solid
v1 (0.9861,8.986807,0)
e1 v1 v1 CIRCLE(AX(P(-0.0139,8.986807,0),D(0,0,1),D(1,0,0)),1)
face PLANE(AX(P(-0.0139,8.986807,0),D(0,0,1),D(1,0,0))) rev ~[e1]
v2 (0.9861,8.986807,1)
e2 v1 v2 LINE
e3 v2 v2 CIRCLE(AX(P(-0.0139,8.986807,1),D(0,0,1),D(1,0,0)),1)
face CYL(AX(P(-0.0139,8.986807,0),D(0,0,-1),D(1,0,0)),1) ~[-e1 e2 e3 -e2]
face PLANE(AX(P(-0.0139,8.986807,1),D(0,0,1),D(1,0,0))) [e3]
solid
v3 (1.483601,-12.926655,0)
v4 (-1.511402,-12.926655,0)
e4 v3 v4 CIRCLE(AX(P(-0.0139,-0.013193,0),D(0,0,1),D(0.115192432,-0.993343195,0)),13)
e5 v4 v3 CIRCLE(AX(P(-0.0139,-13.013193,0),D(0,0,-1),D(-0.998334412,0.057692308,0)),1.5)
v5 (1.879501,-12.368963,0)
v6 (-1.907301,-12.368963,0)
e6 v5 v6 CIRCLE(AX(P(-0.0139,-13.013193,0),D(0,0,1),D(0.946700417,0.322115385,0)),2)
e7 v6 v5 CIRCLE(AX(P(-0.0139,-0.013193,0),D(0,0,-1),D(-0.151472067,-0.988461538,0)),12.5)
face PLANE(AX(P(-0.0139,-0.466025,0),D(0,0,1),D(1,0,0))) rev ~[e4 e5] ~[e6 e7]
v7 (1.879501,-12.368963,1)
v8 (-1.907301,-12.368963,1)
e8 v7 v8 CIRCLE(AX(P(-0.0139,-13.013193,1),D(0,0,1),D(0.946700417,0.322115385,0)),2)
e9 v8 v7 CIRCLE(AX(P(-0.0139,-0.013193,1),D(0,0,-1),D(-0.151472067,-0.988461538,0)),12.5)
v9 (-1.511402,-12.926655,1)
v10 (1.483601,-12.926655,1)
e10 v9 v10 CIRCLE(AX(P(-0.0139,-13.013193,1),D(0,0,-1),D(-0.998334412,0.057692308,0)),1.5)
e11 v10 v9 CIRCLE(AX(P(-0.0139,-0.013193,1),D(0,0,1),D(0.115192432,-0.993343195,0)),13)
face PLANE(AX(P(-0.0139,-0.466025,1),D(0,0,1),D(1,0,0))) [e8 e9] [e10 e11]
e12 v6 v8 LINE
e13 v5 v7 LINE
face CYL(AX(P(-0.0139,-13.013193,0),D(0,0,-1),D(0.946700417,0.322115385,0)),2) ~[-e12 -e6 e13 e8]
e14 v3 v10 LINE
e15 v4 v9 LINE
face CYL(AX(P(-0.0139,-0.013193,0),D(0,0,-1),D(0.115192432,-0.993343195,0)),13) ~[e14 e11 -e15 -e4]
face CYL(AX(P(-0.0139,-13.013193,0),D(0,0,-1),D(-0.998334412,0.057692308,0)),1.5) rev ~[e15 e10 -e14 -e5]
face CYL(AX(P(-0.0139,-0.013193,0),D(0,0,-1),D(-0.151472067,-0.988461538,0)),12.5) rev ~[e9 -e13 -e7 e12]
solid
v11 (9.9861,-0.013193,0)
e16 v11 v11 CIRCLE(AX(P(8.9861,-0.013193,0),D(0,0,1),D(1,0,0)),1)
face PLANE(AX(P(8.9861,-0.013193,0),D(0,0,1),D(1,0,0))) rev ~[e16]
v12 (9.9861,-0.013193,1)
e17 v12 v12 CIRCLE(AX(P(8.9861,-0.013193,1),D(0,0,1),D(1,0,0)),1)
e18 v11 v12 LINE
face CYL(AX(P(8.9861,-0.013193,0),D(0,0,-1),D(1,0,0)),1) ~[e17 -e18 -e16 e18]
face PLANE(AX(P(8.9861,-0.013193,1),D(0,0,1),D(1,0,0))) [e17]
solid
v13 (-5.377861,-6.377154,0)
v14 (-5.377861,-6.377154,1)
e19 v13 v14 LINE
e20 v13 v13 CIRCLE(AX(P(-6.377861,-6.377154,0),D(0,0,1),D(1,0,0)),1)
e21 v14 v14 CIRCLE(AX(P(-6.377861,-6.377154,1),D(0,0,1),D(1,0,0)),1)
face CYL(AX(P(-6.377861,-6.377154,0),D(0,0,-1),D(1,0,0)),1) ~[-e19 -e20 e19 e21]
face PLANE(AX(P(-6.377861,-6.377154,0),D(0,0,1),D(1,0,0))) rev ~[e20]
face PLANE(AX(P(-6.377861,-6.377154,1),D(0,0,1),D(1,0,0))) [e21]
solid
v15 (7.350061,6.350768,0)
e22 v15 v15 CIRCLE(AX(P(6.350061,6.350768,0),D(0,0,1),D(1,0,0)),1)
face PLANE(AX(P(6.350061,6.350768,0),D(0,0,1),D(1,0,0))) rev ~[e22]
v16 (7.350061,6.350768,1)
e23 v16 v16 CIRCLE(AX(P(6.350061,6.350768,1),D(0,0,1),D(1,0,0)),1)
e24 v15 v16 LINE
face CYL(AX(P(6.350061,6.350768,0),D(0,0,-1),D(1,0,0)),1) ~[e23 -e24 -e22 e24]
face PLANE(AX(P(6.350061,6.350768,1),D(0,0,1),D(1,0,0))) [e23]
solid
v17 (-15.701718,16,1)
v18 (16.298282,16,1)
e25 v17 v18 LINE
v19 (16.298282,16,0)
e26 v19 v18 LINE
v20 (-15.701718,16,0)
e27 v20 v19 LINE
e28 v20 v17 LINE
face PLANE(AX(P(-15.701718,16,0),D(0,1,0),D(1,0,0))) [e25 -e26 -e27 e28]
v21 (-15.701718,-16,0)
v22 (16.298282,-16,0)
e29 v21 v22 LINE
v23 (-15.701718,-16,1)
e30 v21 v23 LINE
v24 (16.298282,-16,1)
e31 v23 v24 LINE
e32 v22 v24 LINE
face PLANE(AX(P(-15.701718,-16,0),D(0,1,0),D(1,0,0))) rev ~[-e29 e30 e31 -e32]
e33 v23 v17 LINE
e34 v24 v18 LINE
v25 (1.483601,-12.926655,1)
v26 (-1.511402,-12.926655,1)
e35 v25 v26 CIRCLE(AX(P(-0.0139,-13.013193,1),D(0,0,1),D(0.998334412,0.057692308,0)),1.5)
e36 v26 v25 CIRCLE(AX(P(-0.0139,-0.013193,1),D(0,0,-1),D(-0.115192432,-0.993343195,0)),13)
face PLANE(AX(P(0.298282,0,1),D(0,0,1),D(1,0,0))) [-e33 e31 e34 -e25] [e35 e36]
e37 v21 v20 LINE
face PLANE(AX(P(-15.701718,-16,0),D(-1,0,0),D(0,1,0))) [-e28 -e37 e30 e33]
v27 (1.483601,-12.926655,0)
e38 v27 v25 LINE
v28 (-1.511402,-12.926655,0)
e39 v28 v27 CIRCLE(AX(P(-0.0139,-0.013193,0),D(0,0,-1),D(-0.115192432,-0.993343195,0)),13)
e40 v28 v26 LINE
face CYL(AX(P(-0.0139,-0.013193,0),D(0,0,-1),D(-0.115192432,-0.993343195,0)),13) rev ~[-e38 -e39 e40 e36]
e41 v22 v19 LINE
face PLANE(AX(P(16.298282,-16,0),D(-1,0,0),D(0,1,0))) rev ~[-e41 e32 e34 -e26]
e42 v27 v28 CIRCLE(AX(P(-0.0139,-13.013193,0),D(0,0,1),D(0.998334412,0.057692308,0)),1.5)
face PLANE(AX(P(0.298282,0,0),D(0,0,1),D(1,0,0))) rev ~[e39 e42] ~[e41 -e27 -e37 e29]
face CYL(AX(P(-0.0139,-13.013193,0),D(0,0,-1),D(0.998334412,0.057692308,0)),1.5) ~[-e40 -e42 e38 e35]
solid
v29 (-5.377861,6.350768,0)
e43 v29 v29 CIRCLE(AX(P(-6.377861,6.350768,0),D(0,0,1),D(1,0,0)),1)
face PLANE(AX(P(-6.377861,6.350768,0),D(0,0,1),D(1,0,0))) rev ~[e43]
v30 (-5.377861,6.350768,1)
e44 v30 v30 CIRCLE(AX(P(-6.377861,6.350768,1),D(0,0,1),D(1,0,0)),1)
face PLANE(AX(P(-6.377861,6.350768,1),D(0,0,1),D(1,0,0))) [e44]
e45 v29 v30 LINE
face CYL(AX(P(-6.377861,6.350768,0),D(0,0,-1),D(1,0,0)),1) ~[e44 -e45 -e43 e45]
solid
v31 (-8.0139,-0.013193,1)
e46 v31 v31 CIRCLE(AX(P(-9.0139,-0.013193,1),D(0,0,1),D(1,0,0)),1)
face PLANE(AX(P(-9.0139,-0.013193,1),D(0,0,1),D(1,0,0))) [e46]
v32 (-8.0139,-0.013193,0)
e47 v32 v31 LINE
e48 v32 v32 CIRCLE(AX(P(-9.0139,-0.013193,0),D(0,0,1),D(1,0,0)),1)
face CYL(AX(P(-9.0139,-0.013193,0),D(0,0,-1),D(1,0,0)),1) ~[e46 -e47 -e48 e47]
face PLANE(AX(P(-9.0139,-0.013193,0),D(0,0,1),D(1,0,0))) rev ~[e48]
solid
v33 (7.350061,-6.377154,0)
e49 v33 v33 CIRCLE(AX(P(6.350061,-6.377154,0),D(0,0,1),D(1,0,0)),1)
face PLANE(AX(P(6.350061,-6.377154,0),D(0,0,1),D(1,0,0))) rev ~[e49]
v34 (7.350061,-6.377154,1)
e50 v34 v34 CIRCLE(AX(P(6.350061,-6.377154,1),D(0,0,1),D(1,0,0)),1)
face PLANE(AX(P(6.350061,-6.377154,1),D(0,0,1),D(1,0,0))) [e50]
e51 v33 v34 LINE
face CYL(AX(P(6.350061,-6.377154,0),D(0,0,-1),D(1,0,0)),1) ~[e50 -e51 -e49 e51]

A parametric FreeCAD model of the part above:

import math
import FreeCAD as App
import Part
import Sketcher

V = App.Vector
Q = App.Units.Quantity


def add_polygon(sketch, points):
    """Adds a closed chain of lines whose ends are joined by coincident constraints."""
    first, n = sketch.GeometryCount, len(points)
    for a, b in zip(points, points[1:] + points[:1]):
        sketch.addGeometry(Part.LineSegment(App.Vector(*a, 0), App.Vector(*b, 0)), False)
    for i in range(n):
        sketch.addConstraint(Sketcher.Constraint("Coincident", first + i, 2, first + (i + 1) % n, 1))

doc = App.newDocument("Part")
params = doc.addObject("Spreadsheet::Sheet", "Params")
for row, (alias, value) in enumerate([
    ("sketch1_diameter", "2 mm"),
    ("pad1_length", "1 mm"),
    ("sketch2_diameter", "2 mm"),
    ("pad2_length", "1 mm"),
    ("sketch3_diameter", "2 mm"),
    ("pad3_length", "1 mm"),
    ("sketch4_diameter", "2 mm"),
    ("pad4_length", "1 mm"),
    ("sketch5_diameter", "2 mm"),
    ("pad5_length", "1 mm"),
    ("sketch6_diameter", "2 mm"),
    ("pad6_length", "1 mm"),
    ("sketch7_diameter", "2 mm"),
    ("pad7_length", "1 mm"),
    ("sketch8_radius", "13 mm"),
    ("sketch8_radius2", "2 mm"),
    ("sketch8_radius3", "1.5 mm"),
    ("sketch8_radius4", "12.5 mm"),
    ("pad8_length", "1 mm"),
    ("sketch9_radius", "13 mm"),
    ("sketch9_radius2", "1.5 mm"),
    ("sketch9_width", "32 mm"),
    ("pad9_length", "1 mm"),
], start=1):
    params.set(f"A{row}", alias)
    params.set(f"B{row}", "=" + value)
    params.setAlias(f"B{row}", alias)

body = doc.addObject("PartDesign::Body", "Body")

sketch1 = body.newObject("Sketcher::SketchObject", "Sketch")
sketch1.AttachmentSupport = (doc.getObject("XY_Plane"), [""])
sketch1.MapMode = "FlatFace"
sketch1.addGeometry(Part.Circle(V(-9.0139, -0.013193, 0), V(0, 0, 1), 1), False)
sketch1.addConstraint([
    Sketcher.Constraint("Diameter", 0, Q("2 mm")),
    Sketcher.Constraint("DistanceX", 0, 3, -1, 1, Q("9.0139 mm")),
    Sketcher.Constraint("DistanceY", 0, 3, -1, 1, Q("0.013193 mm")),
])
sketch1.setExpression("Constraints[0]", "Params.sketch1_diameter")
pad1 = body.newObject("PartDesign::Pad", "Pad")
pad1.Profile = sketch1
pad1.setExpression("Length", "Params.pad1_length")
body2 = doc.addObject("PartDesign::Body", "Body001")

sketch2 = body2.newObject("Sketcher::SketchObject", "Sketch001")
sketch2.AttachmentSupport = (doc.getObject("XY_Plane001"), [""])
sketch2.MapMode = "FlatFace"
sketch2.addGeometry(Part.Circle(V(-6.377861, 6.350768, 0), V(0, 0, 1), 1), False)
sketch2.addConstraint([
    Sketcher.Constraint("Diameter", 0, Q("2 mm")),
    Sketcher.Constraint("DistanceX", 0, 3, -1, 1, Q("6.377861 mm")),
    Sketcher.Constraint("DistanceY", -1, 1, 0, 3, Q("6.350768 mm")),
])
sketch2.setExpression("Constraints[0]", "Params.sketch2_diameter")
pad2 = body2.newObject("PartDesign::Pad", "Pad001")
pad2.Profile = sketch2
pad2.setExpression("Length", "Params.pad2_length")
body3 = doc.addObject("PartDesign::Body", "Body002")

sketch3 = body3.newObject("Sketcher::SketchObject", "Sketch002")
sketch3.AttachmentSupport = (doc.getObject("XY_Plane002"), [""])
sketch3.MapMode = "FlatFace"
sketch3.addGeometry(Part.Circle(V(-0.0139, 8.986807, 0), V(0, 0, 1), 1), False)
sketch3.addConstraint([
    Sketcher.Constraint("Diameter", 0, Q("2 mm")),
    Sketcher.Constraint("DistanceX", 0, 3, -1, 1, Q("0.0139 mm")),
    Sketcher.Constraint("DistanceY", -1, 1, 0, 3, Q("8.986807 mm")),
])
sketch3.setExpression("Constraints[0]", "Params.sketch3_diameter")
pad3 = body3.newObject("PartDesign::Pad", "Pad002")
pad3.Profile = sketch3
pad3.setExpression("Length", "Params.pad3_length")
body4 = doc.addObject("PartDesign::Body", "Body003")

sketch4 = body4.newObject("Sketcher::SketchObject", "Sketch003")
sketch4.AttachmentSupport = (doc.getObject("XY_Plane003"), [""])
sketch4.MapMode = "FlatFace"
sketch4.addGeometry(Part.Circle(V(6.350061, 6.350768, 0), V(0, 0, 1), 1), False)
sketch4.addConstraint([
    Sketcher.Constraint("Diameter", 0, Q("2 mm")),
    Sketcher.Constraint("DistanceX", -1, 1, 0, 3, Q("6.350061 mm")),
    Sketcher.Constraint("DistanceY", -1, 1, 0, 3, Q("6.350768 mm")),
])
sketch4.setExpression("Constraints[0]", "Params.sketch4_diameter")
pad4 = body4.newObject("PartDesign::Pad", "Pad003")
pad4.Profile = sketch4
pad4.setExpression("Length", "Params.pad4_length")
body5 = doc.addObject("PartDesign::Body", "Body004")

sketch5 = body5.newObject("Sketcher::SketchObject", "Sketch004")
sketch5.AttachmentSupport = (doc.getObject("XY_Plane004"), [""])
sketch5.MapMode = "FlatFace"
sketch5.addGeometry(Part.Circle(V(8.9861, -0.013193, 0), V(0, 0, 1), 1), False)
sketch5.addConstraint([
    Sketcher.Constraint("Diameter", 0, Q("2 mm")),
    Sketcher.Constraint("DistanceX", -1, 1, 0, 3, Q("8.9861 mm")),
    Sketcher.Constraint("DistanceY", 0, 3, -1, 1, Q("0.013193 mm")),
])
sketch5.setExpression("Constraints[0]", "Params.sketch5_diameter")
pad5 = body5.newObject("PartDesign::Pad", "Pad004")
pad5.Profile = sketch5
pad5.setExpression("Length", "Params.pad5_length")
body6 = doc.addObject("PartDesign::Body", "Body005")

sketch6 = body6.newObject("Sketcher::SketchObject", "Sketch005")
sketch6.AttachmentSupport = (doc.getObject("XY_Plane005"), [""])
sketch6.MapMode = "FlatFace"
sketch6.addGeometry(Part.Circle(V(6.350061, -6.377154, 0), V(0, 0, 1), 1), False)
sketch6.addConstraint([
    Sketcher.Constraint("Diameter", 0, Q("2 mm")),
    Sketcher.Constraint("DistanceX", -1, 1, 0, 3, Q("6.350061 mm")),
    Sketcher.Constraint("DistanceY", 0, 3, -1, 1, Q("6.377154 mm")),
])
sketch6.setExpression("Constraints[0]", "Params.sketch6_diameter")
pad6 = body6.newObject("PartDesign::Pad", "Pad005")
pad6.Profile = sketch6
pad6.setExpression("Length", "Params.pad6_length")
body7 = doc.addObject("PartDesign::Body", "Body006")

sketch7 = body7.newObject("Sketcher::SketchObject", "Sketch006")
sketch7.AttachmentSupport = (doc.getObject("XY_Plane006"), [""])
sketch7.MapMode = "FlatFace"
sketch7.addGeometry(Part.Circle(V(-6.377861, -6.377154, 0), V(0, 0, 1), 1), False)
sketch7.addConstraint([
    Sketcher.Constraint("Diameter", 0, Q("2 mm")),
    Sketcher.Constraint("DistanceX", 0, 3, -1, 1, Q("6.377861 mm")),
    Sketcher.Constraint("DistanceY", 0, 3, -1, 1, Q("6.377154 mm")),
])
sketch7.setExpression("Constraints[0]", "Params.sketch7_diameter")
pad7 = body7.newObject("PartDesign::Pad", "Pad006")
pad7.Profile = sketch7
pad7.setExpression("Length", "Params.pad7_length")
body8 = doc.addObject("PartDesign::Body", "Body007")

sketch8 = body8.newObject("Sketcher::SketchObject", "Sketch007")
sketch8.AttachmentSupport = (doc.getObject("XY_Plane007"), [""])
sketch8.MapMode = "FlatFace"
sketch8.addGeometry([
    Part.ArcOfCircle(Part.Circle(V(-0.0139, -13.013193, 0), V(0, 0, 1), 1.5), math.radians(3.307362), math.radians(176.692638)),
    Part.ArcOfCircle(Part.Circle(V(-0.0139, -0.013193, 0), V(0, 0, 1), 13), math.radians(-83.385276), math.radians(263.385276)),
    Part.ArcOfCircle(Part.Circle(V(-0.0139, -13.013193, 0), V(0, 0, 1), 2), math.radians(18.790903), math.radians(161.209097)),
    Part.ArcOfCircle(Part.Circle(V(-0.0139, -0.013193, 0), V(0, 0, 1), 12.5), math.radians(-81.287755), math.radians(261.287755)),
], False)
sketch8.addConstraint([
    Sketcher.Constraint("Coincident", 0, 1, 1, 1),
    Sketcher.Constraint("Coincident", 1, 2, 0, 2),
    Sketcher.Constraint("Coincident", 2, 1, 3, 1),
    Sketcher.Constraint("Coincident", 3, 2, 2, 2),
    Sketcher.Constraint("Coincident", 2, 3, 0, 3),
    Sketcher.Constraint("Coincident", 3, 3, 1, 3),
    Sketcher.Constraint("Horizontal", 0, 1, 1, 2),
    Sketcher.Constraint("Radius", 1, Q("13 mm")),
    Sketcher.Constraint("Radius", 2, Q("2 mm")),
    Sketcher.Constraint("Radius", 0, Q("1.5 mm")),
    Sketcher.Constraint("Radius", 3, Q("12.5 mm")),
    Sketcher.Constraint("DistanceY", 0, 3, 1, 3, Q("13 mm")),
    Sketcher.Constraint("DistanceX", 0, 3, -1, 1, Q("0.0139 mm")),
    Sketcher.Constraint("DistanceY", 0, 3, -1, 1, Q("13.013193 mm")),
])
sketch8.setExpression("Constraints[7]", "Params.sketch8_radius")
sketch8.setExpression("Constraints[8]", "Params.sketch8_radius2")
sketch8.setExpression("Constraints[9]", "Params.sketch8_radius3")
sketch8.setExpression("Constraints[10]", "Params.sketch8_radius4")
pad8 = body8.newObject("PartDesign::Pad", "Pad007")
pad8.Profile = sketch8
pad8.setExpression("Length", "Params.pad8_length")
body9 = doc.addObject("PartDesign::Body", "Body008")

sketch9 = body9.newObject("Sketcher::SketchObject", "Sketch008")
sketch9.AttachmentSupport = (doc.getObject("XY_Plane008"), [""])
sketch9.MapMode = "FlatFace"
add_polygon(sketch9, [(-15.701718, 16), (-15.701718, -16), (16.298282, -16), (16.298282, 16)])
sketch9.addGeometry(Part.ArcOfCircle(Part.Circle(V(-0.0139, -13.013193, 0), V(0, 0, 1), 1.5), math.radians(3.307362), math.radians(176.692638)), False)
sketch9.addGeometry(Part.ArcOfCircle(Part.Circle(V(-0.0139, -0.013193, 0), V(0, 0, 1), 13), math.radians(-83.385276), math.radians(263.385276)), False)
sketch9.addConstraint([
    Sketcher.Constraint("Coincident", 4, 1, 5, 1),
    Sketcher.Constraint("Coincident", 5, 2, 4, 2),
    Sketcher.Constraint("Vertical", 0),
    Sketcher.Constraint("Horizontal", 1),
    Sketcher.Constraint("Vertical", 2),
    Sketcher.Constraint("Horizontal", 3),
    Sketcher.Constraint("Horizontal", 4, 1, 5, 2),
    Sketcher.Constraint("Equal", 3, 0),
    Sketcher.Constraint("Radius", 5, Q("13 mm")),
    Sketcher.Constraint("Radius", 4, Q("1.5 mm")),
    Sketcher.Constraint("DistanceX", 1, 1, 1, 2, Q("32 mm")),
    Sketcher.Constraint("DistanceY", 0, 2, -1, 1, Q("16 mm")),
    Sketcher.Constraint("DistanceY", 4, 3, 5, 3, Q("13 mm")),
    Sketcher.Constraint("DistanceX", 4, 3, -1, 1, Q("0.0139 mm")),
    Sketcher.Constraint("DistanceX", 0, 2, -1, 1, Q("15.701718 mm")),
    Sketcher.Constraint("DistanceY", 4, 3, -1, 1, Q("13.013193 mm")),
])
sketch9.setExpression("Constraints[12]", "Params.sketch9_radius")
sketch9.setExpression("Constraints[13]", "Params.sketch9_radius2")
sketch9.setExpression("Constraints[14]", "Params.sketch9_width")
pad9 = body9.newObject("PartDesign::Pad", "Pad008")
pad9.Profile = sketch9
pad9.setExpression("Length", "Params.pad9_length")

doc.recompute()
